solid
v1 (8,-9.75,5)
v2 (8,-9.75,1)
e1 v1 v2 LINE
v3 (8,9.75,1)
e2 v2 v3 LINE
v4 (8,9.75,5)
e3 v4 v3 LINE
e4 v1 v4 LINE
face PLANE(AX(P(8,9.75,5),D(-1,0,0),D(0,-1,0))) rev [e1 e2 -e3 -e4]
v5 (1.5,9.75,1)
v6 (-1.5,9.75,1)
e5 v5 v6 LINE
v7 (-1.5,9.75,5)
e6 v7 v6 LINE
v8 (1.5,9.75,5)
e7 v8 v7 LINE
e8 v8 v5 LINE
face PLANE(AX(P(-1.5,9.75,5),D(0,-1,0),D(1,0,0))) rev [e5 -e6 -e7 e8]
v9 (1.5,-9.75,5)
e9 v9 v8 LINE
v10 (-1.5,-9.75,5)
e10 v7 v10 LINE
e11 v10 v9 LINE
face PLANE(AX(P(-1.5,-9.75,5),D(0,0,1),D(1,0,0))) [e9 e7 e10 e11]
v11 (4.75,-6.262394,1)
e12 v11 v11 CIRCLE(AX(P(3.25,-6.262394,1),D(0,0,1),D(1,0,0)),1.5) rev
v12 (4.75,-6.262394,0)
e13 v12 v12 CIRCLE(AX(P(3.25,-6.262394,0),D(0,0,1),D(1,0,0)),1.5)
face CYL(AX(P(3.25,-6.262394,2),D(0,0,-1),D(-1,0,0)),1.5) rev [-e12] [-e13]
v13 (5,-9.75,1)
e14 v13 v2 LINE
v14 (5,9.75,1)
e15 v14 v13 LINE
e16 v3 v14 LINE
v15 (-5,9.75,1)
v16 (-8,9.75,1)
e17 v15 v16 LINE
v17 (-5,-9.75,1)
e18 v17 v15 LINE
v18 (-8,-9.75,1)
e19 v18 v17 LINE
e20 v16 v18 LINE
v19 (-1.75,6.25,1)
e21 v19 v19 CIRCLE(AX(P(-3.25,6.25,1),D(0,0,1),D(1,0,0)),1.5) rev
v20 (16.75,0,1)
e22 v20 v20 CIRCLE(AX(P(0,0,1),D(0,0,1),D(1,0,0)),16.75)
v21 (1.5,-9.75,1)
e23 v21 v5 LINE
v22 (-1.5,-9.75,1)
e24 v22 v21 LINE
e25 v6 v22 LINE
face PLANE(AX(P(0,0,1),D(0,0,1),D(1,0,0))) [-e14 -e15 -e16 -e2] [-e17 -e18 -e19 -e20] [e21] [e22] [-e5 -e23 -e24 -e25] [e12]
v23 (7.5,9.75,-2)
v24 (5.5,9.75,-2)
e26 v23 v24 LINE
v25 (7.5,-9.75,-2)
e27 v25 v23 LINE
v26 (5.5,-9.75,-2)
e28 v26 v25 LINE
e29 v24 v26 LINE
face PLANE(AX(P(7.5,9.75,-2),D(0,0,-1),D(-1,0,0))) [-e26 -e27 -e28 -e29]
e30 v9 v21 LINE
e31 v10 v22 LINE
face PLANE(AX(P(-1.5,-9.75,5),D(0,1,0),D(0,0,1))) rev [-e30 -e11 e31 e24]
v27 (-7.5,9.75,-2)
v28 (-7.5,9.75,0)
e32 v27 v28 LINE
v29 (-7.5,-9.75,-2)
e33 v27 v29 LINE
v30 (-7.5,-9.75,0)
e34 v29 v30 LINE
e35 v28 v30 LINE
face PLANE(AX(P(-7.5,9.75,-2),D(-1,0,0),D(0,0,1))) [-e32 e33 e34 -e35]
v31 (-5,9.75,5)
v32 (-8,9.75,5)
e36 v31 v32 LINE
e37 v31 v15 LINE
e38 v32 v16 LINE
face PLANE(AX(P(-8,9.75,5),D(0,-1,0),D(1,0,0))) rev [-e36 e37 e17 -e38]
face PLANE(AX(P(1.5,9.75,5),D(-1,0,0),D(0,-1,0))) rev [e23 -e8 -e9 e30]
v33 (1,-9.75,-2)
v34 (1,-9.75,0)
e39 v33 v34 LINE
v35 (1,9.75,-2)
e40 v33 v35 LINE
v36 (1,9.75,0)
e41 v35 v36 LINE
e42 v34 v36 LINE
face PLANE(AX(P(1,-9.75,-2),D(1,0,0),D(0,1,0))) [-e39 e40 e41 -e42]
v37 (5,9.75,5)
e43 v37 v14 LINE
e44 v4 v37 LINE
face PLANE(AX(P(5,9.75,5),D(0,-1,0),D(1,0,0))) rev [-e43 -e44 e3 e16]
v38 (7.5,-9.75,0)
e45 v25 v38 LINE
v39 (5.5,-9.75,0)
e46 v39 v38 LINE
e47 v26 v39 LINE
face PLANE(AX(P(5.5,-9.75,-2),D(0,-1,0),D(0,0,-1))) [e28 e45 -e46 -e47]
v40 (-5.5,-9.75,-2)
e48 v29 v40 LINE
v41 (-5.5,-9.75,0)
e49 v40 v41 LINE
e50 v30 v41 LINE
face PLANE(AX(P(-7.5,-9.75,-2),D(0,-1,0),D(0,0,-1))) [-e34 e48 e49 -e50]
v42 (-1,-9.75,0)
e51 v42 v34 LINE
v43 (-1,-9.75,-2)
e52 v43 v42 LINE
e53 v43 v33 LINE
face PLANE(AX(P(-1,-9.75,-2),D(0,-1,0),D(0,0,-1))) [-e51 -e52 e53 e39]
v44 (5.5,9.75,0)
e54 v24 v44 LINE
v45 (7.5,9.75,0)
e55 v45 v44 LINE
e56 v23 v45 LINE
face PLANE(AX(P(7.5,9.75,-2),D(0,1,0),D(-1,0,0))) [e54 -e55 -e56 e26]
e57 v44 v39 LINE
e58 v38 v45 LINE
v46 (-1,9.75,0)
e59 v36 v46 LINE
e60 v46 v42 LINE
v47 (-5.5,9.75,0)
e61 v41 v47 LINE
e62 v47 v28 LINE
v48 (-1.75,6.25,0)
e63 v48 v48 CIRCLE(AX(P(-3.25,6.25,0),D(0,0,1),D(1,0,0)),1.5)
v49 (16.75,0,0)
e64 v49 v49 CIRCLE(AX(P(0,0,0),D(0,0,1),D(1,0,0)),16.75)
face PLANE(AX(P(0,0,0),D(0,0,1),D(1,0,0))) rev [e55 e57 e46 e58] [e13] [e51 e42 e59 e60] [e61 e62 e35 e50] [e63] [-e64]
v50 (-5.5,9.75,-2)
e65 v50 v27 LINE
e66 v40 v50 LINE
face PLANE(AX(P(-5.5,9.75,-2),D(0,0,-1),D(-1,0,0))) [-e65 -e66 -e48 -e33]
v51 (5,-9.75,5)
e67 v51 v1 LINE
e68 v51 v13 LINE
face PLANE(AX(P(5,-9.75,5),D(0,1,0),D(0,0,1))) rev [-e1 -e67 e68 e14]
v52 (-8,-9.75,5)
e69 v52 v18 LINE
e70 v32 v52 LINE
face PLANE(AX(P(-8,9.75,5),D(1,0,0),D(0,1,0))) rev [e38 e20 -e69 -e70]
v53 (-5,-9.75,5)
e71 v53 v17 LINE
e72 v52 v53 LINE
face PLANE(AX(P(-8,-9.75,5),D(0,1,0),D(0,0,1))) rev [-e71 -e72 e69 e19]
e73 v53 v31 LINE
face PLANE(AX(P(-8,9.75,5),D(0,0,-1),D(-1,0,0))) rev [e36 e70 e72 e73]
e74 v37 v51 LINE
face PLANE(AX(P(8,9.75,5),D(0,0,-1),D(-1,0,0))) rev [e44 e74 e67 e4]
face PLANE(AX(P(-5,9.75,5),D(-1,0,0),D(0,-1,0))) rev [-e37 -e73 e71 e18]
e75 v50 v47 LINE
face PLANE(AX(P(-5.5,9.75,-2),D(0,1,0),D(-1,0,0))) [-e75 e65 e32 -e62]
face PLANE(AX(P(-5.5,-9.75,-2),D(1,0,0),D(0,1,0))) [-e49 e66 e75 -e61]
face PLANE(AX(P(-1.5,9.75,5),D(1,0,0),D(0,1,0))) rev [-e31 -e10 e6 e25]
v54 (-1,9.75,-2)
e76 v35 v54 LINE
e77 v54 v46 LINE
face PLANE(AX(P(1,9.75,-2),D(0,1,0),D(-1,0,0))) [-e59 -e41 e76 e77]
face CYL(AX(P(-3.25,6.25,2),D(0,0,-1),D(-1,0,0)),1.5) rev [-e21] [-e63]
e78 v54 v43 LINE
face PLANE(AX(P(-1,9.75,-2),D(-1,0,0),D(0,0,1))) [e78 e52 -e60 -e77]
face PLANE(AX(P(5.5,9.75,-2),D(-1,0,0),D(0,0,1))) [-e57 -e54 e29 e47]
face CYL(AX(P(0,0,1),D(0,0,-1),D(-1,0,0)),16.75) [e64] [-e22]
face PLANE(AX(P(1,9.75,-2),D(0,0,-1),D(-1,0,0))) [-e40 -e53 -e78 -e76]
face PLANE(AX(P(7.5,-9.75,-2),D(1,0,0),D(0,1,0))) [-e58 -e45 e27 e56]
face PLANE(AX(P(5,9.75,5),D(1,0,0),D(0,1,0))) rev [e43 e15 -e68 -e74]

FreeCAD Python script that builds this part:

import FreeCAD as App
import Part
import Sketcher
Q = App.Units.Quantity


def add_polygon(sketch, points):
    """Adds a closed chain of lines whose ends are joined by coincident constraints."""
    first, n = sketch.GeometryCount, len(points)
    for a, b in zip(points, points[1:] + points[:1]):
        sketch.addGeometry(Part.LineSegment(App.Vector(*a, 0), App.Vector(*b, 0)), False)
    for i in range(n):
        sketch.addConstraint(Sketcher.Constraint("Coincident", first + i, 2, first + (i + 1) % n, 1))

doc = App.newDocument("Part")
body = doc.addObject("PartDesign::Body", "Body")

sketch1 = body.newObject("Sketcher::SketchObject", "Sketch")
sketch1.AttachmentSupport = (doc.getObject("XY_Plane"), [""])
sketch1.MapMode = "FlatFace"
sketch1.addGeometry(Part.Circle(App.Vector(0, 0, 0), App.Vector(0, 0, 1), 16.75), False)
sketch1.addConstraint(Sketcher.Constraint("Coincident", 0, 3, -1, 1))
sketch1.addConstraint(Sketcher.Constraint("Diameter", 0, Q("33.5 mm")))
pad1 = body.newObject("PartDesign::Pad", "Pad")
pad1.Profile = sketch1
pad1.Length = 1

sketch2 = body.newObject("Sketcher::SketchObject", "Sketch001")
sketch2.AttachmentSupport = (doc.getObject("XY_Plane"), [""])
sketch2.MapMode = "FlatFace"
sketch2.AttachmentOffset = App.Placement(App.Vector(0, 0, 1), App.Rotation())
add_polygon(sketch2, [(5, 9.75), (5, -9.75), (8, -9.75), (8, 9.75)])
add_polygon(sketch2, [(-1.5, 9.75), (-1.5, -9.75), (1.5, -9.75), (1.5, 9.75)])
add_polygon(sketch2, [(-8, 9.75), (-8, -9.75), (-5, -9.75), (-5, 9.75)])
sketch2.addConstraint(Sketcher.Constraint("Vertical", 0))
sketch2.addConstraint(Sketcher.Constraint("Horizontal", 1))
sketch2.addConstraint(Sketcher.Constraint("Vertical", 2))
sketch2.addConstraint(Sketcher.Constraint("Horizontal", 3))
sketch2.addConstraint(Sketcher.Constraint("Vertical", 4))
sketch2.addConstraint(Sketcher.Constraint("Horizontal", 5))
sketch2.addConstraint(Sketcher.Constraint("Vertical", 6))
sketch2.addConstraint(Sketcher.Constraint("Horizontal", 7))
sketch2.addConstraint(Sketcher.Constraint("Vertical", 8))
sketch2.addConstraint(Sketcher.Constraint("Horizontal", 9))
sketch2.addConstraint(Sketcher.Constraint("Vertical", 10))
sketch2.addConstraint(Sketcher.Constraint("Horizontal", 11))
sketch2.addConstraint(Sketcher.Constraint("Symmetric", 4, 2, 6, 2, -1, 1))
sketch2.addConstraint(Sketcher.Constraint("Symmetric", 2, 2, 8, 2, -1, 1))
sketch2.addConstraint(Sketcher.Constraint("Symmetric", 0, 2, 10, 2, -1, 1))
sketch2.addConstraint(Sketcher.Constraint("Horizontal", 1, 2, 4, 2))
sketch2.addConstraint(Sketcher.Constraint("Horizontal", 3, 2, 6, 2))
sketch2.addConstraint(Sketcher.Constraint("Equal", 3, 5))
sketch2.addConstraint(Sketcher.Constraint("DistanceX", 1, 1, 1, 2, Q("3 mm")))
sketch2.addConstraint(Sketcher.Constraint("DistanceY", 0, 2, 0, 1, Q("19.5 mm")))
sketch2.addConstraint(Sketcher.Constraint("DistanceX", -1, 1, 0, 2, Q("5 mm")))
pad2 = body.newObject("PartDesign::Pad", "Pad001")
pad2.Profile = sketch2
pad2.Length = 4

sketch3 = body.newObject("Sketcher::SketchObject", "Sketch002")
sketch3.AttachmentSupport = (doc.getObject("XY_Plane"), [""])
sketch3.MapMode = "FlatFace"
add_polygon(sketch3, [(5.5, 9.75), (5.5, -9.75), (7.5, -9.75), (7.5, 9.75)])
add_polygon(sketch3, [(-7.5, 9.75), (-7.5, -9.75), (-5.5, -9.75), (-5.5, 9.75)])
add_polygon(sketch3, [(-1, 9.75), (-1, -9.75), (1, -9.75), (1, 9.75)])
sketch3.addConstraint(Sketcher.Constraint("Vertical", 0))
sketch3.addConstraint(Sketcher.Constraint("Horizontal", 1))
sketch3.addConstraint(Sketcher.Constraint("Vertical", 2))
sketch3.addConstraint(Sketcher.Constraint("Horizontal", 3))
sketch3.addConstraint(Sketcher.Constraint("Vertical", 4))
sketch3.addConstraint(Sketcher.Constraint("Horizontal", 5))
sketch3.addConstraint(Sketcher.Constraint("Vertical", 6))
sketch3.addConstraint(Sketcher.Constraint("Horizontal", 7))
sketch3.addConstraint(Sketcher.Constraint("Vertical", 8))
sketch3.addConstraint(Sketcher.Constraint("Horizontal", 9))
sketch3.addConstraint(Sketcher.Constraint("Vertical", 10))
sketch3.addConstraint(Sketcher.Constraint("Horizontal", 11))
sketch3.addConstraint(Sketcher.Constraint("Symmetric", 2, 2, 4, 2, -1, 1))
sketch3.addConstraint(Sketcher.Constraint("Symmetric", 0, 2, 6, 2, -1, 1))
sketch3.addConstraint(Sketcher.Constraint("Symmetric", 8, 2, 10, 2, -1, 1))
sketch3.addConstraint(Sketcher.Constraint("Horizontal", 1, 2, 4, 2))
sketch3.addConstraint(Sketcher.Constraint("Horizontal", 5, 2, 8, 2))
sketch3.addConstraint(Sketcher.Constraint("Equal", 7, 9))
sketch3.addConstraint(Sketcher.Constraint("DistanceX", 1, 1, 1, 2, Q("2 mm")))
sketch3.addConstraint(Sketcher.Constraint("DistanceY", 0, 2, 0, 1, Q("19.5 mm")))
sketch3.addConstraint(Sketcher.Constraint("DistanceX", 4, 2, 0, 2, Q("13 mm")))
pad3 = body.newObject("PartDesign::Pad", "Pad002")
pad3.Profile = sketch3
pad3.Length = 2
pad3.Reversed = True

sketch4 = body.newObject("Sketcher::SketchObject", "Sketch003")
sketch4.AttachmentSupport = (doc.getObject("XY_Plane"), [""])
sketch4.MapMode = "FlatFace"
sketch4.addGeometry(Part.Circle(App.Vector(-3.25, 6.25, 0), App.Vector(0, 0, 1), 1.5), False)
sketch4.addGeometry(Part.Circle(App.Vector(3.25, -6.262394, 0), App.Vector(0, 0, 1), 1.5), False)
sketch4.addConstraint(Sketcher.Constraint("Equal", 0, 1))
sketch4.addConstraint(Sketcher.Constraint("Diameter", 0, Q("3 mm")))
sketch4.addConstraint(Sketcher.Constraint("DistanceX", 0, 3, 1, 3, Q("6.5 mm")))
sketch4.addConstraint(Sketcher.Constraint("DistanceX", 0, 3, -1, 1, Q("3.25 mm")))
sketch4.addConstraint(Sketcher.Constraint("DistanceY", -1, 1, 0, 3, Q("6.25 mm")))
sketch4.addConstraint(Sketcher.Constraint("DistanceY", 1, 3, -1, 1, Q("6.262394 mm")))
pocket1 = body.newObject("PartDesign::Pocket", "Pocket")
pocket1.Profile = sketch4
pocket1.Length = 2
pocket1.Reversed = True

doc.recompute()
